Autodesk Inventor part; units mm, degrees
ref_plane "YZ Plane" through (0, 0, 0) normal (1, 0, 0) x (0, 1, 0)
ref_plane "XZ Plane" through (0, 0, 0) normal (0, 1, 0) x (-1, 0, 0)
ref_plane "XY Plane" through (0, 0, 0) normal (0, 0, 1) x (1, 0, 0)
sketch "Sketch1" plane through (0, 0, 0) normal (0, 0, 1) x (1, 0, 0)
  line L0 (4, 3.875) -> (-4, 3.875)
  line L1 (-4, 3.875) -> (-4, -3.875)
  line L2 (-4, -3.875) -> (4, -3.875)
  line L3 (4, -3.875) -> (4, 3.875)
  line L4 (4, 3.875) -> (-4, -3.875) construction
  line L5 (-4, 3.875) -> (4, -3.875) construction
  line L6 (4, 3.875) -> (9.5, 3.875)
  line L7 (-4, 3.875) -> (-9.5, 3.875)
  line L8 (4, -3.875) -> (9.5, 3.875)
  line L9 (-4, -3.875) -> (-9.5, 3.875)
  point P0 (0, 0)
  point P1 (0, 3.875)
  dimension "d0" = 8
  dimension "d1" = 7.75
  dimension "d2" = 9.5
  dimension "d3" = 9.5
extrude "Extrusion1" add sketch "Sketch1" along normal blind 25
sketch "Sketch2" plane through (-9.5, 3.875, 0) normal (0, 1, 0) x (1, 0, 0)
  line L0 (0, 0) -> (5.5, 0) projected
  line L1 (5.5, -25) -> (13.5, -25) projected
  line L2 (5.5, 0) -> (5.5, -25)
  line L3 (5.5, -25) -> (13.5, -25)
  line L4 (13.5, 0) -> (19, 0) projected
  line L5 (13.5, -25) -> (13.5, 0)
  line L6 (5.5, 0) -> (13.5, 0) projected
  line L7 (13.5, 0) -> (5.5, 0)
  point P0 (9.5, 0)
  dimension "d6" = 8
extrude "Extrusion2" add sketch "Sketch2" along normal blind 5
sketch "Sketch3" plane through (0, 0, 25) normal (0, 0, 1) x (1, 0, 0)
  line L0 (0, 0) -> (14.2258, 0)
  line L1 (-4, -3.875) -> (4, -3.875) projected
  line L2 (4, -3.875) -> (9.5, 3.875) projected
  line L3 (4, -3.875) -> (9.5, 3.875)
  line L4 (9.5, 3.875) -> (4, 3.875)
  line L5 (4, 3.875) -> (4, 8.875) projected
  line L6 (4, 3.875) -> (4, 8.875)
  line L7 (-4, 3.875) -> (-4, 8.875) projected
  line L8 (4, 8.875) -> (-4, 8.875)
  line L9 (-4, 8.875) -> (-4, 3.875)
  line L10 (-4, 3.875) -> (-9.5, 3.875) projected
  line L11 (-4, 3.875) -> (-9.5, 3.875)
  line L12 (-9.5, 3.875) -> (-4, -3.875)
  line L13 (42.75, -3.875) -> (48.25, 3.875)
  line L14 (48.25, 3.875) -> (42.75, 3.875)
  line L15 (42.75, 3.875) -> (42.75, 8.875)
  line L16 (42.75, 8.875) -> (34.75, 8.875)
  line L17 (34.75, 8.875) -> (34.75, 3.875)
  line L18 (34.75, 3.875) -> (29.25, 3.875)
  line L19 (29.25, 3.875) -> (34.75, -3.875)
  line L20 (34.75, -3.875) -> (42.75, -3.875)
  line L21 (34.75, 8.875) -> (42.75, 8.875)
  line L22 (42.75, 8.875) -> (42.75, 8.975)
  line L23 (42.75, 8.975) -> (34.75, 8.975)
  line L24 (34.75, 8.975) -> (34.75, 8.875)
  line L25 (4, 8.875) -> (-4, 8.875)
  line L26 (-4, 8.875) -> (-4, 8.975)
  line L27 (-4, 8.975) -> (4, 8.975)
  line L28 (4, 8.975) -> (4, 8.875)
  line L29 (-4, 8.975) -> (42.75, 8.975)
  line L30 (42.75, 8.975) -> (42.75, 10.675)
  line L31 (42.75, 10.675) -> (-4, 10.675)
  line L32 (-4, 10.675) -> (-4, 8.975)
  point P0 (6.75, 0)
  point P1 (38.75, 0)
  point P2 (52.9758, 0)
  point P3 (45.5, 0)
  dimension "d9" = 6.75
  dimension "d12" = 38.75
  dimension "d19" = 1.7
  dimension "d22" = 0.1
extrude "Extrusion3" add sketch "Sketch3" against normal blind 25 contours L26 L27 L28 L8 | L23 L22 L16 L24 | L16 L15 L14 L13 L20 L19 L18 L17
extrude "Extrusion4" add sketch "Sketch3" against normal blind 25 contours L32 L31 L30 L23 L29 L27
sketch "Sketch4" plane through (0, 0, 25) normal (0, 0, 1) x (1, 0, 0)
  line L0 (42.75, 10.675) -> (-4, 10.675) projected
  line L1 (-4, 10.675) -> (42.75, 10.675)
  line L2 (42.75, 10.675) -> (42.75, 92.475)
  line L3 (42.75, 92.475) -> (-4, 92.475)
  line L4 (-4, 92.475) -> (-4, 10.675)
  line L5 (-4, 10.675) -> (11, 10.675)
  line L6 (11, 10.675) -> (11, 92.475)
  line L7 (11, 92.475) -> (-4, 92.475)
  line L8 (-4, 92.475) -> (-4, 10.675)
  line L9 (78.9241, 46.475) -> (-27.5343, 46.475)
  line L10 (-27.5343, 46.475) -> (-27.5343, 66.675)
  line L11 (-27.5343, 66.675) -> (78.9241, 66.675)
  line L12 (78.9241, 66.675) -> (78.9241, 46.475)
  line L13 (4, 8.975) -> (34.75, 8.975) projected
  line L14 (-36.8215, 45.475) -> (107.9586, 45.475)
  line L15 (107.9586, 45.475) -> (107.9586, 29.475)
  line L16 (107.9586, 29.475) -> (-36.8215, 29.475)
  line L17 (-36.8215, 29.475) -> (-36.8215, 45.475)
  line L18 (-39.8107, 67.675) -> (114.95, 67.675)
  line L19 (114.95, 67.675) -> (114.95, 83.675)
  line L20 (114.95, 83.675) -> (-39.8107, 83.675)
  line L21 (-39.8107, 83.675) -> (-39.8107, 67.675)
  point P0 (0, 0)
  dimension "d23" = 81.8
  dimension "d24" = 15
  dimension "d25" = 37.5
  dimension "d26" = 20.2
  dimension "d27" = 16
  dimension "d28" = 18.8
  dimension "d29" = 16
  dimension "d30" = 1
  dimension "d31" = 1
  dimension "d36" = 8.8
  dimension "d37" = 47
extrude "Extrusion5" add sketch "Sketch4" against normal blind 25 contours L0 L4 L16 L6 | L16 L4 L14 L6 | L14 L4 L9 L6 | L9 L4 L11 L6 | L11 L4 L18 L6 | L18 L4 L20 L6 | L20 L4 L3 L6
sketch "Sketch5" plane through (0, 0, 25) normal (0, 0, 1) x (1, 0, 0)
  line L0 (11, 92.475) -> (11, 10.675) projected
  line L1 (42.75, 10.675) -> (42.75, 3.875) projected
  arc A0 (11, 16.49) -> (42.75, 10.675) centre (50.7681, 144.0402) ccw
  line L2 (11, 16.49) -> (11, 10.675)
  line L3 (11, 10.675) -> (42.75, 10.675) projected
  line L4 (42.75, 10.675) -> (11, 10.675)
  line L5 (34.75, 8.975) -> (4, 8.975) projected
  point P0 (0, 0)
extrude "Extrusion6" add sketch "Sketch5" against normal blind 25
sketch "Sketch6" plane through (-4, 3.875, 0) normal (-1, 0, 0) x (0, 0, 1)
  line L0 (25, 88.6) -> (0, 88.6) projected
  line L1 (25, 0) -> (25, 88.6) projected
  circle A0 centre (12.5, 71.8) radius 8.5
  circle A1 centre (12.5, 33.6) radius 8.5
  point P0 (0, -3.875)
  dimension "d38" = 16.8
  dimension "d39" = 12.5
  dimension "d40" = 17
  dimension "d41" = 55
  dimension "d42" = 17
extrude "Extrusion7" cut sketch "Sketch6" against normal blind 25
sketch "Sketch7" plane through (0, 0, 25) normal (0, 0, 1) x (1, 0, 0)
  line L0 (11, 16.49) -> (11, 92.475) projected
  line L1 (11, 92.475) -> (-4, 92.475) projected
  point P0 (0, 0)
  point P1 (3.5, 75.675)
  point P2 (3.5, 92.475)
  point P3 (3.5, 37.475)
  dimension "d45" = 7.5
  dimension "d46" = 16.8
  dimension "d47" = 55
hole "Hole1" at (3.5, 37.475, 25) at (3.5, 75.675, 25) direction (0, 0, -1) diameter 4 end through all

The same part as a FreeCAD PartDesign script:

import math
import FreeCAD as App
import Part
import Sketcher

V = App.Vector


def add_polygon(sketch, points):
    """Adds a closed chain of lines whose ends are joined by coincident constraints."""
    first, n = sketch.GeometryCount, len(points)
    for a, b in zip(points, points[1:] + points[:1]):
        sketch.addGeometry(Part.LineSegment(App.Vector(*a, 0), App.Vector(*b, 0)), False)
    for i in range(n):
        sketch.addConstraint(Sketcher.Constraint("Coincident", first + i, 2, first + (i + 1) % n, 1))

doc = App.newDocument("Part")
body = doc.addObject("PartDesign::Body", "Body")
body.AllowCompound = True

# Sketch on XY plane
sketch1 = body.newObject("Sketcher::SketchObject", "Sketch")
sketch1.AttachmentSupport = (doc.getObject("XY_Plane"), [""])
sketch1.MapMode = "FlatFace"
add_polygon(sketch1, [(-4, -3.875), (4, -3.875), (9.5, 3.875), (-9.5, 3.875)])  # lines 0-3
sketch1.addConstraint(Sketcher.Constraint("Horizontal", 0))
sketch1.addConstraint(Sketcher.Constraint("Horizontal", 2))
sketch1.addConstraint(Sketcher.Constraint("Equal", 1, 3))
sketch1.addConstraint(Sketcher.Constraint("DistanceX", 0, 1, 0, 2, 8.0))
sketch1.addConstraint(Sketcher.Constraint("DistanceX", -1, 1, 1, 2, 9.5))
sketch1.addConstraint(Sketcher.Constraint("DistanceX", 2, 2, -1, 1, 9.5))
sketch1.addConstraint(Sketcher.Constraint("DistanceY", 0, 2, 1, 2, 7.75))
sketch1.addConstraint(Sketcher.Constraint("DistanceY", 0, 2, -1, 1, 3.875))
pad1 = body.newObject("PartDesign::Pad", "Pad")
pad1.Profile = sketch1
pad1.Length = 25

# Sketch on XZ plane
sketch2 = body.newObject("Sketcher::SketchObject", "Sketch001")
sketch2.AttachmentSupport = (doc.getObject("XZ_Plane"), [""])
sketch2.MapMode = "FlatFace"
sketch2.AttachmentOffset = App.Placement(V(0, 0, -3.875), App.Rotation())
add_polygon(sketch2, [(-4, 0), (-4, 25), (4, 25), (4, 0)])  # lines 0-3
sketch2.addConstraint(Sketcher.Constraint("Vertical", 0))
sketch2.addConstraint(Sketcher.Constraint("Horizontal", 1))
sketch2.addConstraint(Sketcher.Constraint("Vertical", 2))
sketch2.addConstraint(Sketcher.Constraint("Horizontal", 3))
sketch2.addConstraint(Sketcher.Constraint("Symmetric", 2, 2, 3, 2, -1, 1))
sketch2.addConstraint(Sketcher.Constraint("DistanceX", 1, 1, 1, 2, 8.0))
sketch2.addConstraint(Sketcher.Constraint("DistanceY", 0, 1, 0, 2, 25.0))
pad2 = body.newObject("PartDesign::Pad", "Pad001")
pad2.Profile = sketch2
pad2.Length = 5
pad2.Reversed = True

# Sketch on XY plane
sketch3 = body.newObject("Sketcher::SketchObject", "Sketch002")
sketch3.AttachmentSupport = (doc.getObject("XY_Plane"), [""])
sketch3.MapMode = "FlatFace"
sketch3.AttachmentOffset = App.Placement(V(0, 0, 25), App.Rotation())
add_polygon(sketch3, [(-4, 8.975), (-4, 8.875), (4, 8.875), (4, 8.975)])  # lines 0-3
add_polygon(sketch3, [(42.75, 8.975), (34.75, 8.975), (34.75, 3.875), (29.25, 3.875), (34.75, -3.875), (42.75, -3.875), (48.25, 3.875), (42.75, 3.875)])  # lines 4-11
sketch3.addConstraint(Sketcher.Constraint("Vertical", 0))
sketch3.addConstraint(Sketcher.Constraint("Horizontal", 1))
sketch3.addConstraint(Sketcher.Constraint("Vertical", 2))
sketch3.addConstraint(Sketcher.Constraint("Horizontal", 3))
sketch3.addConstraint(Sketcher.Constraint("Horizontal", 4))
sketch3.addConstraint(Sketcher.Constraint("Vertical", 5))
sketch3.addConstraint(Sketcher.Constraint("Horizontal", 6))
sketch3.addConstraint(Sketcher.Constraint("Horizontal", 8))
sketch3.addConstraint(Sketcher.Constraint("Horizontal", 10))
sketch3.addConstraint(Sketcher.Constraint("Vertical", 11))
sketch3.addConstraint(Sketcher.Constraint("Symmetric", 5, 2, 7, 2, -1))
sketch3.addConstraint(Sketcher.Constraint("Symmetric", 8, 2, 10, 2, -1))
sketch3.addConstraint(Sketcher.Constraint("Horizontal", 3, 2, 4, 2))
sketch3.addConstraint(Sketcher.Constraint("Equal", 3, 4))
sketch3.addConstraint(Sketcher.Constraint("Equal", 6, 10))
sketch3.addConstraint(Sketcher.Constraint("DistanceY", 0, 2, 0, 1, 0.1))
sketch3.addConstraint(Sketcher.Constraint("DistanceX", 1, 1, 1, 2, 8.0))
sketch3.addConstraint(Sketcher.Constraint("DistanceX", 3, 2, 4, 2, 38.75))
sketch3.addConstraint(Sketcher.Constraint("DistanceX", 6, 2, 6, 1, 5.5))
sketch3.addConstraint(Sketcher.Constraint("DistanceY", 5, 2, 5, 1, 5.1))
sketch3.addConstraint(Sketcher.Constraint("DistanceX", 0, 2, -1, 1, 4.0))
sketch3.addConstraint(Sketcher.Constraint("DistanceY", 7, 2, 5, 2, 7.75))
pad3 = body.newObject("PartDesign::Pad", "Pad002")
pad3.Profile = sketch3
pad3.Length = 25
pad3.Reversed = True

# Sketch on XY plane
sketch4 = body.newObject("Sketcher::SketchObject", "Sketch003")
sketch4.AttachmentSupport = (doc.getObject("XY_Plane"), [""])
sketch4.MapMode = "FlatFace"
sketch4.AttachmentOffset = App.Placement(V(0, 0, 25), App.Rotation())
add_polygon(sketch4, [(-4, 10.675), (-4, 8.975), (42.75, 8.975), (42.75, 10.675)])  # lines 0-3
sketch4.addConstraint(Sketcher.Constraint("Vertical", 0))
sketch4.addConstraint(Sketcher.Constraint("Horizontal", 1))
sketch4.addConstraint(Sketcher.Constraint("Vertical", 2))
sketch4.addConstraint(Sketcher.Constraint("Horizontal", 3))
sketch4.addConstraint(Sketcher.Constraint("DistanceY", 0, 2, 0, 1, 1.7))
sketch4.addConstraint(Sketcher.Constraint("DistanceX", 0, 2, -1, 1, 4.0))
sketch4.addConstraint(Sketcher.Constraint("DistanceX", 1, 1, 1, 2, 46.75))
sketch4.addConstraint(Sketcher.Constraint("DistanceY", -1, 1, 0, 2, 8.975))
pad4 = body.newObject("PartDesign::Pad", "Pad003")
pad4.Profile = sketch4
pad4.Length = 25
pad4.Reversed = True

# Sketch on XY plane
sketch5 = body.newObject("Sketcher::SketchObject", "Sketch004")
sketch5.AttachmentSupport = (doc.getObject("XY_Plane"), [""])
sketch5.MapMode = "FlatFace"
sketch5.AttachmentOffset = App.Placement(V(0, 0, 25), App.Rotation())
add_polygon(sketch5, [(-4, 10.675), (11, 10.675), (11, 92.475), (-4, 92.475)])  # lines 0-3
sketch5.addConstraint(Sketcher.Constraint("Horizontal", 0))
sketch5.addConstraint(Sketcher.Constraint("Vertical", 1))
sketch5.addConstraint(Sketcher.Constraint("Horizontal", 2))
sketch5.addConstraint(Sketcher.Constraint("Vertical", 3))
sketch5.addConstraint(Sketcher.Constraint("DistanceX", 0, 1, 0, 2, 15.0))
sketch5.addConstraint(Sketcher.Constraint("DistanceY", 1, 1, 1, 2, 81.8))
sketch5.addConstraint(Sketcher.Constraint("DistanceX", -1, 1, 0, 2, 11.0))
sketch5.addConstraint(Sketcher.Constraint("DistanceY", -1, 1, 0, 2, 10.675))
pad5 = body.newObject("PartDesign::Pad", "Pad004")
pad5.Profile = sketch5
pad5.Length = 25
pad5.Reversed = True

# Sketch on XY plane
sketch6 = body.newObject("Sketcher::SketchObject", "Sketch005")
sketch6.AttachmentSupport = (doc.getObject("XY_Plane"), [""])
sketch6.MapMode = "FlatFace"
sketch6.AttachmentOffset = App.Placement(V(0, 0, 25), App.Rotation())
sketch6.addGeometry(Part.ArcOfCircle(Part.Circle(V(50.768786, 144.042984, 0), V(0, 0, 1), 133.608833), math.radians(-107.316564), math.radians(-93.440782)), False)
sketch6.addGeometry(Part.LineSegment(V(11, 16.49, 0), V(11, 10.675, 0)), False)
sketch6.addGeometry(Part.LineSegment(V(11, 10.675, 0), V(42.75, 10.675, 0)), False)
sketch6.addConstraint(Sketcher.Constraint("Coincident", 0, 1, 1, 1))
sketch6.addConstraint(Sketcher.Constraint("Coincident", 1, 2, 2, 1))
sketch6.addConstraint(Sketcher.Constraint("Coincident", 2, 2, 0, 2))
sketch6.addConstraint(Sketcher.Constraint("Vertical", 1))
sketch6.addConstraint(Sketcher.Constraint("Horizontal", 2))
sketch6.addConstraint(Sketcher.Constraint("DistanceX", -1, 1, 0, 1, 11.0))
sketch6.addConstraint(Sketcher.Constraint("DistanceX", 2, 1, 2, 2, 31.75))
sketch6.addConstraint(Sketcher.Constraint("Radius", 0, 133.6088))
sketch6.addConstraint(Sketcher.Constraint("DistanceY", 1, 2, 1, 1, 5.815))
sketch6.addConstraint(Sketcher.Constraint("DistanceY", -1, 1, 0, 1, 16.49))
pad6 = body.newObject("PartDesign::Pad", "Pad005")
pad6.Profile = sketch6
pad6.Length = 25
pad6.Reversed = True

# Sketch on YZ plane
sketch7 = body.newObject("Sketcher::SketchObject", "Sketch006")
sketch7.AttachmentSupport = (doc.getObject("YZ_Plane"), [""])
sketch7.MapMode = "FlatFace"
sketch7.AttachmentOffset = App.Placement(V(0, 0, -4), App.Rotation())
sketch7.addGeometry(Part.Circle(V(75.675, 12.5, 0), V(0, 0, 1), 8.5), False)
sketch7.addGeometry(Part.Circle(V(37.475, 12.5, 0), V(0, 0, 1), 8.5), False)
sketch7.addConstraint(Sketcher.Constraint("Equal", 0, 1))
sketch7.addConstraint(Sketcher.Constraint("Horizontal", 0, 3, 1, 3))
sketch7.addConstraint(Sketcher.Constraint("Diameter", 0, 17.0))
sketch7.addConstraint(Sketcher.Constraint("DistanceY", -1, 1, 0, 3, 12.5))
sketch7.addConstraint(Sketcher.Constraint("DistanceX", 1, 3, 0, 3, 38.2))
sketch7.addConstraint(Sketcher.Constraint("DistanceX", -1, 1, 0, 3, 75.675))
pocket1 = body.newObject("PartDesign::Pocket", "Pocket")
pocket1.Profile = sketch7
pocket1.Length = 25
pocket1.Reversed = True

# Sketch on XY plane
sketch8 = body.newObject("Sketcher::SketchObject", "Sketch007")
sketch8.AttachmentSupport = (doc.getObject("XY_Plane"), [""])
sketch8.MapMode = "FlatFace"
sketch8.AttachmentOffset = App.Placement(V(0, 0, 25), App.Rotation())
sketch8.addGeometry(Part.Circle(V(3.5, 37.475, 0), V(0, 0, 1), 2), False)
sketch8.addGeometry(Part.Circle(V(3.5, 75.675, 0), V(0, 0, 1), 2), False)
sketch8.addConstraint(Sketcher.Constraint("Equal", 0, 1))
sketch8.addConstraint(Sketcher.Constraint("Vertical", 0, 3, 1, 3))
sketch8.addConstraint(Sketcher.Constraint("Diameter", 0, 4.0))
sketch8.addConstraint(Sketcher.Constraint("DistanceX", -1, 1, 0, 3, 3.5))
sketch8.addConstraint(Sketcher.Constraint("DistanceY", 0, 3, 1, 3, 38.2))
sketch8.addConstraint(Sketcher.Constraint("DistanceY", -1, 1, 0, 3, 37.475))
doc.recompute()
hole = body.newObject("PartDesign::Hole", "Hole")
hole.Profile = sketch8
hole.ThreadType = "None"
hole.Diameter = 4
hole.DepthType = "ThroughAll"

doc.recompute()
